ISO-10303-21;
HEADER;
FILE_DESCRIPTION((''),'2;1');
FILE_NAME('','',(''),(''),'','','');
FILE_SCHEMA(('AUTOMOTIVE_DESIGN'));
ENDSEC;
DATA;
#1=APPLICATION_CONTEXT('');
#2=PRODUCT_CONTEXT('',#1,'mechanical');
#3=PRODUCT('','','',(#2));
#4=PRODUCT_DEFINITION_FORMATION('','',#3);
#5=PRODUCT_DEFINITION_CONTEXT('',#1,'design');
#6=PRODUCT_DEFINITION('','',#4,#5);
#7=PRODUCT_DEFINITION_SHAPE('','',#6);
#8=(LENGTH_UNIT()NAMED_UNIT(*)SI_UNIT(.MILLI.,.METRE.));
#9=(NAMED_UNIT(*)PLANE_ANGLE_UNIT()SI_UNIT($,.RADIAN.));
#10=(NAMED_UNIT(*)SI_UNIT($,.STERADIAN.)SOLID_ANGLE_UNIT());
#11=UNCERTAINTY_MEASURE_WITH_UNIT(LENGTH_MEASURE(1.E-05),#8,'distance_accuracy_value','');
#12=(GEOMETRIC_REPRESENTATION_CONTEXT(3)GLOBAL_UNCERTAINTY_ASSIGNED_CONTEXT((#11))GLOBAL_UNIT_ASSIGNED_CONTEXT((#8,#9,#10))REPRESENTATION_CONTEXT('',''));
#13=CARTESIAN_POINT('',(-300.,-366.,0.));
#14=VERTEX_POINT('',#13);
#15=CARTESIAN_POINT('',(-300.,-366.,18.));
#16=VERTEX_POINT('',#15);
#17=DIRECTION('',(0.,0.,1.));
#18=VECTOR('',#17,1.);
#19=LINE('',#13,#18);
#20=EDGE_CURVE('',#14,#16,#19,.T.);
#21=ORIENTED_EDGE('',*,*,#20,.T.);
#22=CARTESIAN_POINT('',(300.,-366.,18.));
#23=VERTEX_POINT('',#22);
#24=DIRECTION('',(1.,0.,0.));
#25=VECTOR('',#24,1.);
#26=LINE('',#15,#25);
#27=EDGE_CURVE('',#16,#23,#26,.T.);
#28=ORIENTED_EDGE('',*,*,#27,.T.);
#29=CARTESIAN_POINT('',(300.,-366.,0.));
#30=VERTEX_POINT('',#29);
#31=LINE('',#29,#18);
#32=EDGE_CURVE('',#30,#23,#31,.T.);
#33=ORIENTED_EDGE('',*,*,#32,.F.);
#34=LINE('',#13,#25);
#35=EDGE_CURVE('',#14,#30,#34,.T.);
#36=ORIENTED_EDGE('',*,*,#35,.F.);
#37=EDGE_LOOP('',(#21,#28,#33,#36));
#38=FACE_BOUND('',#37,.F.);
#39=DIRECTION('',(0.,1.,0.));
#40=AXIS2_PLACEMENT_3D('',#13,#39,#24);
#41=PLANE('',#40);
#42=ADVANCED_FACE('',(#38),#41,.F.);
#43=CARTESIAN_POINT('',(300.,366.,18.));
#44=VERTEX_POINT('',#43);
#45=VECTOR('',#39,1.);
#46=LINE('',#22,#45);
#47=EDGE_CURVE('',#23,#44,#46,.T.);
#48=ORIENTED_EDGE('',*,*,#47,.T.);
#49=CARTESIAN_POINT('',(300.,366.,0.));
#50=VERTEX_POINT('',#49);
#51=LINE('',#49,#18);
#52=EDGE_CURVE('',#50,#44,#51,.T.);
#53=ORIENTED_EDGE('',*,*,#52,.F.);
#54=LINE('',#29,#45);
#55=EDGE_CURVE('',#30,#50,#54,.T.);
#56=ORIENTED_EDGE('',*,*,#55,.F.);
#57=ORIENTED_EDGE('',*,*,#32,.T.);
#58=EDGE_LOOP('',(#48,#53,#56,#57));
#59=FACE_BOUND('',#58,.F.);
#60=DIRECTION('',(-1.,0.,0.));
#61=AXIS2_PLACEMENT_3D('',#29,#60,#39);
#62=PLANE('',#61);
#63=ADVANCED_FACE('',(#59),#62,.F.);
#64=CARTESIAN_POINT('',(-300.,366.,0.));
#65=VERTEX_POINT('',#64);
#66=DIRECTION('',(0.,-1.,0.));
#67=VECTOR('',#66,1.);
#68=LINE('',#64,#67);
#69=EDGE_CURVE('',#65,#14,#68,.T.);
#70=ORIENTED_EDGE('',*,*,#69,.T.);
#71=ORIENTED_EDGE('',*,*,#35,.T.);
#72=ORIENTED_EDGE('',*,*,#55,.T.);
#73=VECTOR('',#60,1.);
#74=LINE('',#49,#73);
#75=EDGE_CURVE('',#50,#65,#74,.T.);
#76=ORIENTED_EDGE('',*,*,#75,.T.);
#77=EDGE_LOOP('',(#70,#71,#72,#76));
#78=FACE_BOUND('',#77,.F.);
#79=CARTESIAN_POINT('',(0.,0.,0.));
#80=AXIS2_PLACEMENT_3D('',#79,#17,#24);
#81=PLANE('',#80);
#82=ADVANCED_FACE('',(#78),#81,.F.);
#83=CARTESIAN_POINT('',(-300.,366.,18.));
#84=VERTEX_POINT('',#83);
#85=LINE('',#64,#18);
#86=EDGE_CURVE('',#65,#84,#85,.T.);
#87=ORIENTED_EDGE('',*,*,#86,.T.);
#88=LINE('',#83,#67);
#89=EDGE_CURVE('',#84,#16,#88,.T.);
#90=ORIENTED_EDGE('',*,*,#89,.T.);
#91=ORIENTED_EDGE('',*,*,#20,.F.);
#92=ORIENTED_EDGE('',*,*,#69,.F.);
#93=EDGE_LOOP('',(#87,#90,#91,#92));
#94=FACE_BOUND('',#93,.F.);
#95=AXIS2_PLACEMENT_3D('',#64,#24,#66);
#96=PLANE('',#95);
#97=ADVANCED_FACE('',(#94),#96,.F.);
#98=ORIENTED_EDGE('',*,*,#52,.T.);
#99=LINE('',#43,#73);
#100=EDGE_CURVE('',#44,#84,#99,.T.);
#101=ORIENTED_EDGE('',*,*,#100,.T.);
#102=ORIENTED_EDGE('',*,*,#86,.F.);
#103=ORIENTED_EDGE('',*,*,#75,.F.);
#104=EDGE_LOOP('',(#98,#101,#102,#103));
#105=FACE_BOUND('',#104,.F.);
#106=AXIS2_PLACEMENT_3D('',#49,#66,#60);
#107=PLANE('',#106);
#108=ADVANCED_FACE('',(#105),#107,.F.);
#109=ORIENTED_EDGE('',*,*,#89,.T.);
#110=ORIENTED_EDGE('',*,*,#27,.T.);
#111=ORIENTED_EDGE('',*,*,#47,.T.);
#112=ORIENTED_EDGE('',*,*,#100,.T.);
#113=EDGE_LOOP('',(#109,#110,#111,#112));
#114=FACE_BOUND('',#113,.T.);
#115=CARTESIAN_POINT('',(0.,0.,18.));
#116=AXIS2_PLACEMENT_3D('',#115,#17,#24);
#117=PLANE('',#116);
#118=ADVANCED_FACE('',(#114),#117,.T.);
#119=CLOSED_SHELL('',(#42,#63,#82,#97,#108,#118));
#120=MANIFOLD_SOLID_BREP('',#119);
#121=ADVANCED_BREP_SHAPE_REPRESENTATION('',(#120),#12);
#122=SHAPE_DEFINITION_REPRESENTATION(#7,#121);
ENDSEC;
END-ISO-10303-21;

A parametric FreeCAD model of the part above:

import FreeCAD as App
import Part
import Sketcher
from FreeCAD import Vector

doc = App.newDocument("Part")
body = doc.addObject("PartDesign::Body", "Body")

sketch1 = body.newObject("Sketcher::SketchObject", "Sketch")
sketch1.AttachmentSupport = (doc.getObject("XY_Plane"), [""])
sketch1.MapMode = "FlatFace"
sketch1.addGeometry(Part.LineSegment(Vector(-300, 366, 0), Vector(-300, -366, 0)), False)
sketch1.addGeometry(Part.LineSegment(Vector(-300, -366, 0), Vector(300, -366, 0)), False)
sketch1.addGeometry(Part.LineSegment(Vector(300, -366, 0), Vector(300, 366, 0)), False)
sketch1.addGeometry(Part.LineSegment(Vector(300, 366, 0), Vector(-300, 366, 0)), False)
sketch1.addConstraint(Sketcher.Constraint("Coincident", 0, 2, 1, 1))
sketch1.addConstraint(Sketcher.Constraint("Coincident", 1, 2, 2, 1))
sketch1.addConstraint(Sketcher.Constraint("Coincident", 2, 2, 3, 1))
sketch1.addConstraint(Sketcher.Constraint("Coincident", 3, 2, 0, 1))
sketch1.addConstraint(Sketcher.Constraint("Vertical", 0))
sketch1.addConstraint(Sketcher.Constraint("Horizontal", 1))
sketch1.addConstraint(Sketcher.Constraint("Vertical", 2))
sketch1.addConstraint(Sketcher.Constraint("Horizontal", 3))
sketch1.addConstraint(Sketcher.Constraint("Symmetric", 0, 2, 2, 2, -1, 1))
sketch1.addConstraint(Sketcher.Constraint("DistanceX", 1, 1, 1, 2, 600.0))
sketch1.addConstraint(Sketcher.Constraint("DistanceY", 0, 2, 0, 1, 732.0))
pad1 = body.newObject("PartDesign::Pad", "Pad")
pad1.Profile = sketch1
pad1.Length = 18

doc.recompute()
